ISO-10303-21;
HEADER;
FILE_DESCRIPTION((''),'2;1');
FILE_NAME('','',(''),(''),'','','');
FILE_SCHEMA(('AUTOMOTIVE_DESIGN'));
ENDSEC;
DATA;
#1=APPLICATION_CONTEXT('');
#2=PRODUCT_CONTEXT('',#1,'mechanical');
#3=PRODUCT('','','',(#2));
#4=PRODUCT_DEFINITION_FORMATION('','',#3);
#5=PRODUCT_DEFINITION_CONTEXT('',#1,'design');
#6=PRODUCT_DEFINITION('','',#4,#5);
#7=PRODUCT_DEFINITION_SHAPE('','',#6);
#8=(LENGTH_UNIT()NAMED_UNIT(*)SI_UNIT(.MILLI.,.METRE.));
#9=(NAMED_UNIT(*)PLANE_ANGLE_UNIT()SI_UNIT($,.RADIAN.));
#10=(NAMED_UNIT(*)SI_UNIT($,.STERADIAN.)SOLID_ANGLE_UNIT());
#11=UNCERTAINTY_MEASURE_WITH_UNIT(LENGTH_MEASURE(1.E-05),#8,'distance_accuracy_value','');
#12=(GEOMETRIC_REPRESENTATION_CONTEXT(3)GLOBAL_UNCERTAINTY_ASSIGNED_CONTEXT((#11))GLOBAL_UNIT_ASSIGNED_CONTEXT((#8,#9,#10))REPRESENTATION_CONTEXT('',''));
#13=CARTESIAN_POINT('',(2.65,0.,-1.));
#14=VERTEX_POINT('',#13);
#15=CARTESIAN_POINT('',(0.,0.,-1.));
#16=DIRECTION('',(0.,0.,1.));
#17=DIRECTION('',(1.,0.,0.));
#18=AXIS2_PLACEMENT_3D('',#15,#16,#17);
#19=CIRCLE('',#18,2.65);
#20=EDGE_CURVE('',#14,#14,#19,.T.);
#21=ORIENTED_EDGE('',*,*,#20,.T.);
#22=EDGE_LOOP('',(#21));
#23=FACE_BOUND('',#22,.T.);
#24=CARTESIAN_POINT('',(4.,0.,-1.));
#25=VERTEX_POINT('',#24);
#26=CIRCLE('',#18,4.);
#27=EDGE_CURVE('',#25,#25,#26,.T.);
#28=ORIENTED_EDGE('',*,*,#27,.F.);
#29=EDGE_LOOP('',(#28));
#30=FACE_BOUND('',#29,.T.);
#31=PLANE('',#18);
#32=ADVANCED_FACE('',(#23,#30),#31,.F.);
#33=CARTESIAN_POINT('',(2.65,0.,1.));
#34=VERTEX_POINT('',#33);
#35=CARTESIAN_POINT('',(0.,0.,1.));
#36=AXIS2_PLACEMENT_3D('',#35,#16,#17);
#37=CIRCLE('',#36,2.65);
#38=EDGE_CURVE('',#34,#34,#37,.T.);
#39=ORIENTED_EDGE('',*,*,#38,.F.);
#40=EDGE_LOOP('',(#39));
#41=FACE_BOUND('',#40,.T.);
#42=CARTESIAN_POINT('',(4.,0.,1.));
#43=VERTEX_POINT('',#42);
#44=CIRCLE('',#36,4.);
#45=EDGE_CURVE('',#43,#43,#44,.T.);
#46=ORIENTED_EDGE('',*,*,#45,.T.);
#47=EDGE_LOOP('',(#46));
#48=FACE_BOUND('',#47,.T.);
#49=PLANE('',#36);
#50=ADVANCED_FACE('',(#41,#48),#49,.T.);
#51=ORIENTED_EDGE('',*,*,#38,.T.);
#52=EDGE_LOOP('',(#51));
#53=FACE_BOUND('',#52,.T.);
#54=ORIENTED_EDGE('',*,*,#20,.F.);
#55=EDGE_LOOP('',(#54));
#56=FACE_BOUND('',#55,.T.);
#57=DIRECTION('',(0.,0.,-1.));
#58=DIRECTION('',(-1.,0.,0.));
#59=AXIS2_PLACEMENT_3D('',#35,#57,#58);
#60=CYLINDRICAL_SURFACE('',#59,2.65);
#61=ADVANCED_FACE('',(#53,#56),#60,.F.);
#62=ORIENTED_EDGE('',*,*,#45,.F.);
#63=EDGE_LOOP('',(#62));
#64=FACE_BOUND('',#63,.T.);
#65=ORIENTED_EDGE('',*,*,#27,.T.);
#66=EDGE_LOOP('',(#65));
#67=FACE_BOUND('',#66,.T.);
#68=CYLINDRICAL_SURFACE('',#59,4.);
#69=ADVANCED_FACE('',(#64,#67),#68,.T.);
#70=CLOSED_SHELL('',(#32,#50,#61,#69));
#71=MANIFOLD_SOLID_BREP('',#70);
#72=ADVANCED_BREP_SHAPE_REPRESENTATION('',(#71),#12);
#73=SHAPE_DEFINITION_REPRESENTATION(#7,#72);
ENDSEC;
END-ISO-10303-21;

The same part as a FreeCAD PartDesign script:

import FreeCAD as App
import Part
import Sketcher

doc = App.newDocument("Part")
body = doc.addObject("PartDesign::Body", "Body")

# Sketch on XY plane
sketch1 = body.newObject("Sketcher::SketchObject", "Sketch")
sketch1.AttachmentSupport = (doc.getObject("XY_Plane"), [""])
sketch1.MapMode = "FlatFace"
sketch1.addGeometry(Part.Circle(App.Vector(0, 0, 0), App.Vector(0, 0, 1), 4), False)
sketch1.addGeometry(Part.Circle(App.Vector(0, 0, 0), App.Vector(0, 0, 1), 2.65), False)
sketch1.addConstraint(Sketcher.Constraint("Coincident", 0, 3, -1, 1))
sketch1.addConstraint(Sketcher.Constraint("Coincident", 1, 3, -1, 1))
sketch1.addConstraint(Sketcher.Constraint("Diameter", 0, 8.0))
sketch1.addConstraint(Sketcher.Constraint("Diameter", 1, 5.3))
pad1 = body.newObject("PartDesign::Pad", "Pad")
pad1.Profile = sketch1
pad1.Type = "TwoLengths"
pad1.Length = 1
pad1.Length2 = 1

doc.recompute()
